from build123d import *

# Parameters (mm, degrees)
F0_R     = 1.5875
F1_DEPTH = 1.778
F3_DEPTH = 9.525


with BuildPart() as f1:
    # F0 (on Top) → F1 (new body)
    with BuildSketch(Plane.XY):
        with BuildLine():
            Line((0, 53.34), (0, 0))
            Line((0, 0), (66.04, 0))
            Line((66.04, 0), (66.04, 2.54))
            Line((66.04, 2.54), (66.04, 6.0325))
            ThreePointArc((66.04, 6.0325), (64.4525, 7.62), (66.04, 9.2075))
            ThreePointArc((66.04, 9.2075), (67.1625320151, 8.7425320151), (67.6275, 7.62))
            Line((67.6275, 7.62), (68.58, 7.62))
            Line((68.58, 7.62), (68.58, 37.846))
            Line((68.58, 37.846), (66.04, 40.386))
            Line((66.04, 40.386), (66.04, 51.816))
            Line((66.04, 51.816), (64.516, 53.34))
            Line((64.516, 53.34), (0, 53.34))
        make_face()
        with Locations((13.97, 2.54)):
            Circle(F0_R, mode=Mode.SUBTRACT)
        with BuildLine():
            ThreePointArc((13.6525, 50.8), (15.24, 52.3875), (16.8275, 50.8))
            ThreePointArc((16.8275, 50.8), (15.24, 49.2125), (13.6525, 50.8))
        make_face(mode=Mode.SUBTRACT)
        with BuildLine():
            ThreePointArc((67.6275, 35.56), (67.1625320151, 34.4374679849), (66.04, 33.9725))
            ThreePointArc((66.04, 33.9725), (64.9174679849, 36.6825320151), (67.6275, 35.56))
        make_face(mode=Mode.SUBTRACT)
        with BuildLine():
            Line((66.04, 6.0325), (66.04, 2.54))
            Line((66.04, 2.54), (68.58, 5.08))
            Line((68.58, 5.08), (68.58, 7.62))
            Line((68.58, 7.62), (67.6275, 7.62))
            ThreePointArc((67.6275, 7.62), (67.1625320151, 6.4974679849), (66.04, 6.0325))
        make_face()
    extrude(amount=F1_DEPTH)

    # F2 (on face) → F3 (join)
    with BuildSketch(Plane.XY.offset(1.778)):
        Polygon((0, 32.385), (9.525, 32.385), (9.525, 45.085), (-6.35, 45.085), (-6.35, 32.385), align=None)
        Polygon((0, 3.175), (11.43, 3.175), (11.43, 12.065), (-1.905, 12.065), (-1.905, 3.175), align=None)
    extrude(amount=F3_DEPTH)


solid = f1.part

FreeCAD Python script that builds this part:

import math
import FreeCAD as App
import Part
import Sketcher
Q = App.Units.Quantity


def add_polygon(sketch, points):
    """Adds a closed chain of lines whose ends are joined by coincident constraints."""
    first, n = sketch.GeometryCount, len(points)
    for a, b in zip(points, points[1:] + points[:1]):
        sketch.addGeometry(Part.LineSegment(App.Vector(*a, 0), App.Vector(*b, 0)), False)
    for i in range(n):
        sketch.addConstraint(Sketcher.Constraint("Coincident", first + i, 2, first + (i + 1) % n, 1))

doc = App.newDocument("Part")
params = doc.addObject("Spreadsheet::Sheet", "Params")
for row, (alias, value) in enumerate([
    ("sketch1_diameter", "0.125 in"),
    ("sketch1_width", "2.6 in"),
    ("sketch1_height", "2.1 in"),
    ("sketch1_height2", "0.1 in"),
    ("sketch1_width2", "2.54 in"),
    ("pad1_length", "0.07 in"),
    ("sketch2_height", "0.5 in"),
    ("sketch2_height2", "0.35 in"),
    ("sketch2_width", "0.625 in"),
    ("sketch2_width2", "0.525 in"),
    ("pad2_length", "0.375 in"),
], start=1):
    params.set(f"A{row}", alias)
    params.set(f"B{row}", "=" + value)
    params.setAlias(f"B{row}", alias)

body = doc.addObject("PartDesign::Body", "Body")

# Sketch on XY plane
sketch1 = body.newObject("Sketcher::SketchObject", "Sketch")
sketch1.AttachmentSupport = (doc.getObject("XY_Plane"), [""])
sketch1.MapMode = "FlatFace"
add_polygon(sketch1, [(0, 53.3), (0, 0), (66, 0), (66, 2.5), (68.6, 5.1), (68.6, 37.8), (66, 40.4), (66, 51.8), (64.5, 53.3)])  # lines 0-8
sketch1.addGeometry(Part.ArcOfCircle(Part.Circle(App.Vector(66, 7.6, 0), App.Vector(0, 0, 1), 1.6), math.radians(90), math.radians(270)), False)  # 9
sketch1.addGeometry(Part.ArcOfCircle(Part.Circle(App.Vector(66, 7.6, 0), App.Vector(0, 0, 1), 1.6), math.radians(0), math.radians(90)), False)  # 10
sketch1.addGeometry(Part.ArcOfCircle(Part.Circle(App.Vector(66, 7.6, 0), App.Vector(0, 0, 1), 1.6), math.radians(-90), math.radians(0)), False)  # 11
sketch1.addGeometry(Part.Circle(App.Vector(14, 2.5, 0), App.Vector(0, 0, 1), 1.6), False)  # 12
sketch1.addGeometry(Part.Circle(App.Vector(15.2, 50.8, 0), App.Vector(0, 0, 1), 1.6), False)  # 13
sketch1.addGeometry(Part.ArcOfCircle(Part.Circle(App.Vector(66, 35.6, 0), App.Vector(0, 0, 1), 1.6), math.radians(0), math.radians(270)), False)  # 14
sketch1.addGeometry(Part.ArcOfCircle(Part.Circle(App.Vector(66, 35.6, 0), App.Vector(0, 0, 1), 1.6), math.radians(-90), math.radians(0)), False)  # 15
sketch1.addConstraint([
    Sketcher.Constraint("Tangent", 9, 1, 10, 2),
    Sketcher.Constraint("Tangent", 10, 1, 11, 2),
    Sketcher.Constraint("Tangent", 11, 1, 9, 2),
    Sketcher.Constraint("Tangent", 14, 1, 15, 2),
    Sketcher.Constraint("Coincident", 15, 1, 14, 2),
    Sketcher.Constraint("Vertical", 0),
    Sketcher.Constraint("Horizontal", 1),
    Sketcher.Constraint("Vertical", 2),
    Sketcher.Constraint("Vertical", 4),
    Sketcher.Constraint("Vertical", 6),
    Sketcher.Constraint("Horizontal", 8),
    Sketcher.Constraint("Coincident", 0, 2, -1, 1),
    Sketcher.Constraint("Equal", 11, 12),
    Sketcher.Constraint("Equal", 12, 13),
    Sketcher.Constraint("Equal", 13, 14),
    Sketcher.Constraint("Perpendicular", 3, 5),
    Sketcher.Constraint("Parallel", 5, 7),
    Sketcher.Constraint("Horizontal", 12, 3, 2, 2),
    Sketcher.Constraint("Horizontal", 11, 3, 10, 1),
    Sketcher.Constraint("Horizontal", 15, 3, 14, 1),
    Sketcher.Constraint("Vertical", 11, 3, 14, 3),
    Sketcher.Constraint("Vertical", 15, 3, 1, 2),
    Sketcher.Constraint("Vertical", 2, 2, 5, 2),
    Sketcher.Constraint("Vertical", 6, 2, 9, 1),
    Sketcher.Constraint("Vertical", 9, 1, 11, 1),
    Sketcher.Constraint("Vertical", 11, 1, 15, 1),
    Sketcher.Constraint("Equal", 3, 5),
    Sketcher.Constraint("Diameter", 12, Q("0.125 in")),
    Sketcher.Constraint("DistanceX", 1, 1, 1, 2, Q("2.6 in")),
    Sketcher.Constraint("DistanceY", 0, 2, 0, 1, Q("2.1 in")),
    Sketcher.Constraint("DistanceY", 2, 1, 2, 2, Q("0.1 in")),
    Sketcher.Constraint("DistanceY", -1, 1, 13, 3, Q("2 in")),
    Sketcher.Constraint("DistanceX", 13, 3, 9, 3, Q("2 in")),
    Sketcher.Constraint("DistanceX", 8, 2, 8, 1, Q("2.54 in")),
    Sketcher.Constraint("DistanceY", 4, 1, 4, 2, Q("1.29 in")),
    Sketcher.Constraint("DistanceY", 6, 1, 6, 2, Q("0.45 in")),
    Sketcher.Constraint("DistanceY", -1, 1, 9, 3, Q("0.3 in")),
    Sketcher.Constraint("DistanceY", -1, 1, 14, 3, Q("1.4 in")),
    Sketcher.Constraint("DistanceX", -1, 1, 12, 3, Q("0.55 in")),
])
sketch1.setExpression("Constraints[36]", "Params.sketch1_diameter")
sketch1.setExpression("Constraints[37]", "Params.sketch1_width")
sketch1.setExpression("Constraints[38]", "Params.sketch1_height")
sketch1.setExpression("Constraints[39]", "Params.sketch1_height2")
sketch1.setExpression("Constraints[42]", "Params.sketch1_width2")
pad1 = body.newObject("PartDesign::Pad", "Pad")
pad1.Profile = sketch1
pad1.setExpression("Length", "Params.pad1_length")

# Sketch on XY plane
sketch2 = body.newObject("Sketcher::SketchObject", "Sketch001")
sketch2.AttachmentSupport = (doc.getObject("XY_Plane"), [""])
sketch2.MapMode = "FlatFace"
sketch2.AttachmentOffset = App.Placement(App.Vector(0, 0, 0.07 * 25.4), App.Rotation())
add_polygon(sketch2, [(10, 32), (10, 45), (-6, 45), (-6, 32)])  # lines 0-3
add_polygon(sketch2, [(11, 3), (11, 12), (-2, 12), (-2, 3)])  # lines 4-7
sketch2.addConstraint([
    Sketcher.Constraint("Vertical", 0),
    Sketcher.Constraint("Horizontal", 1),
    Sketcher.Constraint("Vertical", 2),
    Sketcher.Constraint("Horizontal", 3),
    Sketcher.Constraint("Vertical", 4),
    Sketcher.Constraint("Horizontal", 5),
    Sketcher.Constraint("Vertical", 6),
    Sketcher.Constraint("Horizontal", 7),
    Sketcher.Constraint("DistanceY", 0, 1, 0, 2, Q("0.5 in")),
    Sketcher.Constraint("DistanceY", 4, 1, 4, 2, Q("0.35 in")),
    Sketcher.Constraint("DistanceY", 4, 2, 3, 2, Q("0.8 in")),
    Sketcher.Constraint("DistanceX", 2, 2, 4, 2, Q("0.7 in")),
    Sketcher.Constraint("DistanceX", 1, 2, 1, 1, Q("0.625 in")),
    Sketcher.Constraint("DistanceX", 5, 2, 5, 1, Q("0.525 in")),
    Sketcher.Constraint("DistanceX", 1, 2, -1, 1, Q("0.25 in")),
    Sketcher.Constraint("DistanceY", -1, 1, 0, 2, Q("1.775 in")),
])
sketch2.setExpression("Constraints[16]", "Params.sketch2_height")
sketch2.setExpression("Constraints[17]", "Params.sketch2_height2")
sketch2.setExpression("Constraints[20]", "Params.sketch2_width")
sketch2.setExpression("Constraints[21]", "Params.sketch2_width2")
pad2 = body.newObject("PartDesign::Pad", "Pad001")
pad2.Profile = sketch2
pad2.setExpression("Length", "Params.pad2_length")

doc.recompute()
